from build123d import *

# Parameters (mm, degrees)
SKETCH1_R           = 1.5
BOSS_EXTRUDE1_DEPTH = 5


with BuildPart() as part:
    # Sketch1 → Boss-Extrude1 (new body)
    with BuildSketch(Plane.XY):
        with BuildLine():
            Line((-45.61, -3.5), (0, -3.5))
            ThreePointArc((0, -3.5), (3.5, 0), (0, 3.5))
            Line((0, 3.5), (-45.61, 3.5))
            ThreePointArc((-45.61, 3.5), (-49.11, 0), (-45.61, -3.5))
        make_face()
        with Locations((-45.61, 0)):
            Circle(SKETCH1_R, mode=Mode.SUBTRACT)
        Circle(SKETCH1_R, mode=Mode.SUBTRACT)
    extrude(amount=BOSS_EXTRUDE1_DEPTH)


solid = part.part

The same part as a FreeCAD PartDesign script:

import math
import FreeCAD as App
import Part
import Sketcher

V = App.Vector
Q = App.Units.Quantity

doc = App.newDocument("Part")
body = doc.addObject("PartDesign::Body", "Body")

# Sketch on XY plane
sketch1 = body.newObject("Sketcher::SketchObject", "Sketch")
sketch1.AttachmentSupport = (doc.getObject("XY_Plane"), [""])
sketch1.MapMode = "FlatFace"
sketch1.addGeometry(Part.LineSegment(V(-45.6, -3.5, 0), V(0, -3.5, 0)), False)
sketch1.addGeometry(Part.ArcOfCircle(Part.Circle(V(0, 0, 0), V(0, 0, 1), 3.5), math.radians(-90), math.radians(90)), False)
sketch1.addGeometry(Part.LineSegment(V(0, 3.5, 0), V(-45.6, 3.5, 0)), False)
sketch1.addGeometry(Part.ArcOfCircle(Part.Circle(V(-45.6, 0, 0), V(0, 0, 1), 3.5), math.radians(90), math.radians(270)), False)
sketch1.addGeometry(Part.Circle(V(-45.6, 0, 0), V(0, 0, 1), 1.5), False)
sketch1.addGeometry(Part.Circle(V(0, 0, 0), V(0, 0, 1), 1.5), False)
sketch1.addConstraint(Sketcher.Constraint("Tangent", 0, 2, 1, 1))
sketch1.addConstraint(Sketcher.Constraint("Tangent", 1, 2, 2, 1))
sketch1.addConstraint(Sketcher.Constraint("Tangent", 2, 2, 3, 1))
sketch1.addConstraint(Sketcher.Constraint("Tangent", 3, 2, 0, 1))
sketch1.addConstraint(Sketcher.Constraint("Horizontal", 0))
sketch1.addConstraint(Sketcher.Constraint("Horizontal", 2))
sketch1.addConstraint(Sketcher.Constraint("Coincident", 1, 3, -1, 1))
sketch1.addConstraint(Sketcher.Constraint("Coincident", 5, 3, -1, 1))
sketch1.addConstraint(Sketcher.Constraint("Coincident", 4, 3, 3, 3))
sketch1.addConstraint(Sketcher.Constraint("Equal", 4, 5))
sketch1.addConstraint(Sketcher.Constraint("Diameter", 4, Q("3 mm")))
sketch1.addConstraint(Sketcher.Constraint("Radius", 1, Q("3.5 mm")))
sketch1.addConstraint(Sketcher.Constraint("DistanceX", 0, 1, 0, 2, Q("45.61 mm")))
pad1 = body.newObject("PartDesign::Pad", "Pad")
pad1.Profile = sketch1
pad1.Length = 5

doc.recompute()
